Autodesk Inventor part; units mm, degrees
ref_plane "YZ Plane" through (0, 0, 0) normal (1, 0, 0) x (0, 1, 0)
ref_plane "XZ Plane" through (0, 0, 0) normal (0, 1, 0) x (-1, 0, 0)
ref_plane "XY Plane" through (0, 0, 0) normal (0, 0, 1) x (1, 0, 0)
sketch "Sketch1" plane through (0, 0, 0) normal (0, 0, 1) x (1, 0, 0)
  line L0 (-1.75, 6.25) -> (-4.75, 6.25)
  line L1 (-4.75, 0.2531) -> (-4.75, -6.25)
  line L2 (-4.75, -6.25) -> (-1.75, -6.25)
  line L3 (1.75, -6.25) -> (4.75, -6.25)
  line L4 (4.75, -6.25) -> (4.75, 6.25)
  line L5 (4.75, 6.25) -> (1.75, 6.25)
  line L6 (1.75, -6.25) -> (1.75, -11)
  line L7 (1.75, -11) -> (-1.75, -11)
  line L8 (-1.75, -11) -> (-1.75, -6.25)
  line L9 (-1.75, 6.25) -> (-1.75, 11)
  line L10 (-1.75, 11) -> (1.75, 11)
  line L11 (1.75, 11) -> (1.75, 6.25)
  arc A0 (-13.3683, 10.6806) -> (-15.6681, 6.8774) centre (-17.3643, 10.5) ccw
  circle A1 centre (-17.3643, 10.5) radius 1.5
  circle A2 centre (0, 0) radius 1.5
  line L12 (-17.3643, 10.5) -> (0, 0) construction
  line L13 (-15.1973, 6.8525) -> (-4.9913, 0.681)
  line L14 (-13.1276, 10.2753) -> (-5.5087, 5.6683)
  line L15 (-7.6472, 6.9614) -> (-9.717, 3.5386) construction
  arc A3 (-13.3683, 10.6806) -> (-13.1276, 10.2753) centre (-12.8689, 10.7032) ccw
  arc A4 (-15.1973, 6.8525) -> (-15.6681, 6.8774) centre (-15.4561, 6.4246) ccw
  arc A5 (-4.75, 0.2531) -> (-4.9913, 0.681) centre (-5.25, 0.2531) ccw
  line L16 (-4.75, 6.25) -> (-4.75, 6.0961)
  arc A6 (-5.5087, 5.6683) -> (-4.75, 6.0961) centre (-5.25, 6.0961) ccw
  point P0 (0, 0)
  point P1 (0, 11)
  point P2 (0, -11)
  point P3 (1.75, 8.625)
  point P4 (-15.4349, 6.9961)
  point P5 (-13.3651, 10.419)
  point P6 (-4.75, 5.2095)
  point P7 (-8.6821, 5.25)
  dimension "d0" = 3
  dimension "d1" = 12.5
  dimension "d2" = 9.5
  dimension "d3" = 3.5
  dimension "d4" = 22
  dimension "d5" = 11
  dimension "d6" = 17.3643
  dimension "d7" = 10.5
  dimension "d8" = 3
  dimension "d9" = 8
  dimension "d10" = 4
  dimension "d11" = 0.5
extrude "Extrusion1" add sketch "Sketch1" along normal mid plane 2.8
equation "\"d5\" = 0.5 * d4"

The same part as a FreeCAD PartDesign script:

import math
import FreeCAD as App
import Part
import Sketcher

V = App.Vector
Q = App.Units.Quantity

doc = App.newDocument("Part")
body = doc.addObject("PartDesign::Body", "Body")

sketch1 = doc.addObject("Sketcher::SketchObject", "Sketch")
body.addObject(sketch1)
sketch1.AttachmentSupport = (doc.XY_Plane, [""])
sketch1.MapMode = "FlatFace"
sketch1.addGeometry([
    Part.LineSegment(V(-1.75, 11, 0), V(-1.75, 6.25, 0)),
    Part.LineSegment(V(-1.75, 6.25, 0), V(-4.75, 6.25, 0)),
    Part.LineSegment(V(-4.75, 6.25, 0), V(-4.75, 6.0961, 0)),
    Part.ArcOfCircle(Part.Circle(V(-5.25, 6.0961, 0), V(0, 0, 1), 0.499939), math.radians(-121.162269), math.radians(0)),
    Part.LineSegment(V(-5.5087, 5.6683, 0), V(-13.1276, 10.2753, 0)),
    Part.ArcOfCircle(Part.Circle(V(-12.8689, 10.7032, 0), V(0, 0, 1), 0.499911), math.radians(-177.408887), math.radians(-121.15634)),
    Part.ArcOfCircle(Part.Circle(V(-17.3643, 10.5, 0), V(0, 0, 1), 4.000079), math.radians(2.587733), math.radians(295.090274)),
    Part.ArcOfCircle(Part.Circle(V(-15.4561, 6.4246, 0), V(0, 0, 1), 0.500076), math.radians(58.833855), math.radians(115.088894)),
    Part.LineSegment(V(-15.1973, 6.8525, 0), V(-4.9913, 0.681, 0)),
    Part.ArcOfCircle(Part.Circle(V(-5.25, 0.2531, 0), V(0, 0, 1), 0.5), math.radians(0), math.radians(58.84366)),
    Part.LineSegment(V(-4.75, 0.2531, 0), V(-4.75, -6.25, 0)),
    Part.LineSegment(V(-4.75, -6.25, 0), V(-1.75, -6.25, 0)),
    Part.LineSegment(V(-1.75, -6.25, 0), V(-1.75, -11, 0)),
    Part.LineSegment(V(-1.75, -11, 0), V(1.75, -11, 0)),
    Part.LineSegment(V(1.75, -11, 0), V(1.75, -6.25, 0)),
    Part.LineSegment(V(1.75, -6.25, 0), V(4.75, -6.25, 0)),
    Part.LineSegment(V(4.75, -6.25, 0), V(4.75, 6.25, 0)),
    Part.LineSegment(V(4.75, 6.25, 0), V(1.75, 6.25, 0)),
    Part.LineSegment(V(1.75, 6.25, 0), V(1.75, 11, 0)),
    Part.LineSegment(V(1.75, 11, 0), V(-1.75, 11, 0)),
    Part.Circle(V(0, 0, 0), V(0, 0, 1), 1.5),
    Part.Circle(V(-17.3643, 10.5, 0), V(0, 0, 1), 1.5),
], False)
sketch1.addConstraint([
    Sketcher.Constraint("Coincident", 0, 2, 1, 1),
    Sketcher.Constraint("Coincident", 1, 2, 2, 1),
    Sketcher.Constraint("Tangent", 2, 2, 3, 2),
    Sketcher.Constraint("Tangent", 3, 1, 4, 1),
    Sketcher.Constraint("Tangent", 4, 2, 5, 2),
    Sketcher.Constraint("Tangent", 5, 1, 6, 1),
    Sketcher.Constraint("Tangent", 6, 2, 7, 2),
    Sketcher.Constraint("Tangent", 7, 1, 8, 1),
    Sketcher.Constraint("Tangent", 8, 2, 9, 2),
    Sketcher.Constraint("Tangent", 9, 1, 10, 1),
    Sketcher.Constraint("Coincident", 10, 2, 11, 1),
    Sketcher.Constraint("Coincident", 11, 2, 12, 1),
    Sketcher.Constraint("Coincident", 12, 2, 13, 1),
    Sketcher.Constraint("Coincident", 13, 2, 14, 1),
    Sketcher.Constraint("Coincident", 14, 2, 15, 1),
    Sketcher.Constraint("Coincident", 15, 2, 16, 1),
    Sketcher.Constraint("Coincident", 16, 2, 17, 1),
    Sketcher.Constraint("Coincident", 17, 2, 18, 1),
    Sketcher.Constraint("Coincident", 18, 2, 19, 1),
    Sketcher.Constraint("Coincident", 19, 2, 0, 1),
    Sketcher.Constraint("Vertical", 0),
    Sketcher.Constraint("Horizontal", 1),
    Sketcher.Constraint("Vertical", 2),
    Sketcher.Constraint("Vertical", 10),
    Sketcher.Constraint("Horizontal", 11),
    Sketcher.Constraint("Vertical", 12),
    Sketcher.Constraint("Horizontal", 13),
    Sketcher.Constraint("Vertical", 14),
    Sketcher.Constraint("Horizontal", 15),
    Sketcher.Constraint("Vertical", 16),
    Sketcher.Constraint("Horizontal", 17),
    Sketcher.Constraint("Vertical", 18),
    Sketcher.Constraint("Horizontal", 19),
    Sketcher.Constraint("Coincident", 20, 3, -1, 1),
    Sketcher.Constraint("Coincident", 21, 3, 6, 3),
    Sketcher.Constraint("Equal", 3, 5),
    Sketcher.Constraint("Equal", 5, 7),
    Sketcher.Constraint("Equal", 7, 9),
    Sketcher.Constraint("Equal", 20, 21),
    Sketcher.Constraint("Symmetric", 0, 2, 14, 2, -1, 1),
    Sketcher.Constraint("Symmetric", 10, 2, 16, 2, -1, 1),
    Sketcher.Constraint("Symmetric", 12, 2, 18, 2, -1, 1),
    Sketcher.Constraint("Symmetric", 11, 2, 14, 2, -2),
    Sketcher.Constraint("Parallel", 4, 8),
    Sketcher.Constraint("Vertical", 3, 3, 9, 3),
    Sketcher.Constraint("Diameter", 20, 3.0),
    Sketcher.Constraint("Radius", 6, 4.0),
    Sketcher.Constraint("Radius", 3, 0.5),
    Sketcher.Constraint("DistanceX", 1, 2, 1, 1, 3.0),
    Sketcher.Constraint("DistanceX", 13, 1, 13, 2, 3.5),
    Sketcher.Constraint("DistanceY", 16, 1, 16, 2, 12.5),
    Sketcher.Constraint("DistanceY", 12, 2, -1, 1, 11.0),
    Sketcher.Constraint("DistanceY", -1, 1, 6, 3, 10.5),
    Sketcher.Constraint("DistanceX", 6, 3, -1, 1, 17.3643),
    Sketcher.Constraint("Angle", 4, Q("148.8395 deg")),
    Sketcher.Constraint("DistanceY", 2, 2, 2, 1, 0.154),
    Sketcher.Constraint("DistanceY", 10, 2, 10, 1, 6.503),
])
pad1 = doc.addObject("PartDesign::Pad", "Pad")
body.addObject(pad1)
pad1.Profile = sketch1
pad1.Length = 2.8
pad1.Midplane = True

doc.recompute()
